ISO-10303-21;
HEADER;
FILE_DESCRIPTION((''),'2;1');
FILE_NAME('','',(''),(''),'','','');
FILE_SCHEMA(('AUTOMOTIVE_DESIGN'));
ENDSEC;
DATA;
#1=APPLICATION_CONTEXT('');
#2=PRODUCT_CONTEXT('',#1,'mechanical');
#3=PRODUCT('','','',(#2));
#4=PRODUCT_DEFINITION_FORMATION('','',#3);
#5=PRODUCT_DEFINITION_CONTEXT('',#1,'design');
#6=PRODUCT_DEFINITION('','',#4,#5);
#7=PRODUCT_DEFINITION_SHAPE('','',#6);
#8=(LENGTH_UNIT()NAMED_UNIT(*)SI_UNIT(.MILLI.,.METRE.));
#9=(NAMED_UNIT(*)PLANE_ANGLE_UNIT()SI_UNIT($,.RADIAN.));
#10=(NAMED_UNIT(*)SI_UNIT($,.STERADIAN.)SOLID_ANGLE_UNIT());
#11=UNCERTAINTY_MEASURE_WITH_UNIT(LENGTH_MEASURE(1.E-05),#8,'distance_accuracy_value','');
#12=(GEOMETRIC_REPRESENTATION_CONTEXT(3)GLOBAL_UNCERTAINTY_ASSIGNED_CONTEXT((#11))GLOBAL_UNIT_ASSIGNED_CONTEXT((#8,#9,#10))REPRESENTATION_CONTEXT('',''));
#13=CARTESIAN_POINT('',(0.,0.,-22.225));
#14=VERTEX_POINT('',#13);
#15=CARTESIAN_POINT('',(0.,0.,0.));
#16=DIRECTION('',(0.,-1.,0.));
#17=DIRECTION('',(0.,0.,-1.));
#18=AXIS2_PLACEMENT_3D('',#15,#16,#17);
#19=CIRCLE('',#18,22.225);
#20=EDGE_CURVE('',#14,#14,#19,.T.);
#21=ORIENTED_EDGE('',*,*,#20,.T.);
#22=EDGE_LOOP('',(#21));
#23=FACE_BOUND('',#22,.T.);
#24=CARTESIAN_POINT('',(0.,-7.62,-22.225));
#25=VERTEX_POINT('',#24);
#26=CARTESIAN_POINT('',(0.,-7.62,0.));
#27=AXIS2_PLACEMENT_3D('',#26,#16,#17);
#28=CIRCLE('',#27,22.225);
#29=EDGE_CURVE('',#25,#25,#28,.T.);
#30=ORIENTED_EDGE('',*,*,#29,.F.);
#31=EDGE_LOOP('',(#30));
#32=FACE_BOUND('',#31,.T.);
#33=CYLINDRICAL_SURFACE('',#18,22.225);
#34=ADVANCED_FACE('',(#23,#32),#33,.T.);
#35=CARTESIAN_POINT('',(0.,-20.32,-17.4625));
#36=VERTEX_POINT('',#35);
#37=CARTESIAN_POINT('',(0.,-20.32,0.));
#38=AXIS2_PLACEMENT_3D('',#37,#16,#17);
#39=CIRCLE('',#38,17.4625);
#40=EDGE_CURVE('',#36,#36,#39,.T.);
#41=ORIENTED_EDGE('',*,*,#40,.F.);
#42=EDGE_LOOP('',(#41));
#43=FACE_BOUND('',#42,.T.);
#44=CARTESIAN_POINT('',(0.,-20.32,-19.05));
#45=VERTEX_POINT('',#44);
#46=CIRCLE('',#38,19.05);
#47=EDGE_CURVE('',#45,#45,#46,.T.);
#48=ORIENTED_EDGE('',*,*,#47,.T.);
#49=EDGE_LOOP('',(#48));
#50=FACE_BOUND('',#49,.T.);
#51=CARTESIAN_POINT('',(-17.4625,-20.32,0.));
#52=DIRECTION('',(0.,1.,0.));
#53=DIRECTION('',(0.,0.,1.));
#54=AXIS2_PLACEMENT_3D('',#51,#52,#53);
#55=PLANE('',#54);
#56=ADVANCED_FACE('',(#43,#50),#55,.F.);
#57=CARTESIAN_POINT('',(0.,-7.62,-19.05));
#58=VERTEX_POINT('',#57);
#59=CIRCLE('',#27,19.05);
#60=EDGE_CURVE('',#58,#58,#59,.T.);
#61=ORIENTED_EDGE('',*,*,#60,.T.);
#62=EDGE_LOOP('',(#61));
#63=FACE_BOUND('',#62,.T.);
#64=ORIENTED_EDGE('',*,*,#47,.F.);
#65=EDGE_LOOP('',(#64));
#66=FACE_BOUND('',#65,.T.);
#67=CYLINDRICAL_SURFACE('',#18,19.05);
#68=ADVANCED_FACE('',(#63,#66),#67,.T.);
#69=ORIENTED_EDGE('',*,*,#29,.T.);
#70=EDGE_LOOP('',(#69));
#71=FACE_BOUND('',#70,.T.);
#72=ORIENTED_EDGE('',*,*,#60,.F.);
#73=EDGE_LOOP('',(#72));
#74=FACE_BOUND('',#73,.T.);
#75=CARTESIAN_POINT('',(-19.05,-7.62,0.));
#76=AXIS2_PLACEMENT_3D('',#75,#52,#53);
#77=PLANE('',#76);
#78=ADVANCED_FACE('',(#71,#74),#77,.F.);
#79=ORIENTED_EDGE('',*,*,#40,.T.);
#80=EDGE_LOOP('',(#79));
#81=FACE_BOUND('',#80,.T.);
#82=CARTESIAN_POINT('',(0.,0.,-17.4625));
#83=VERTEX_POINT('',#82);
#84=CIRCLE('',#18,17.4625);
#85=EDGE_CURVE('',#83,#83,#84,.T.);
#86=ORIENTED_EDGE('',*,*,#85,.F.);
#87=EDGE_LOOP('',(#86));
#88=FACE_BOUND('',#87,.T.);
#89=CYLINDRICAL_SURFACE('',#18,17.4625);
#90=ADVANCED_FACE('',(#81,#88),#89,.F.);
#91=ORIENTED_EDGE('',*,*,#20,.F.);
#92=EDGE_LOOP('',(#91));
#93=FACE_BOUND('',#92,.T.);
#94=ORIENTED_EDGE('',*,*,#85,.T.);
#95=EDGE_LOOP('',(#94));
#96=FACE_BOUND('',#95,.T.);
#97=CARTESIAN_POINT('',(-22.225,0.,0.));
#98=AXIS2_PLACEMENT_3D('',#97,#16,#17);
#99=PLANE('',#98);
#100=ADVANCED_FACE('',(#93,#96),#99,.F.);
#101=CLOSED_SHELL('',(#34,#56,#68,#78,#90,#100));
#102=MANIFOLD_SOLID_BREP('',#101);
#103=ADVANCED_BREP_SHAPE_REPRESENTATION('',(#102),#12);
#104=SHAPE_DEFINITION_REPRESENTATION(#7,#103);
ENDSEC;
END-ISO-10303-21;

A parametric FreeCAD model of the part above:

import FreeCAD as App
import Part
import Sketcher
from FreeCAD import Vector
Q = App.Units.Quantity


def add_polygon(sketch, points):
    """Adds a closed chain of lines whose ends are joined by coincident constraints."""
    first, n = sketch.GeometryCount, len(points)
    for a, b in zip(points, points[1:] + points[:1]):
        sketch.addGeometry(Part.LineSegment(App.Vector(*a, 0), App.Vector(*b, 0)), False)
    for i in range(n):
        sketch.addConstraint(Sketcher.Constraint("Coincident", first + i, 2, first + (i + 1) % n, 1))

doc = App.newDocument("Part")
body = doc.addObject("PartDesign::Body", "Body")

# Sketch on XY plane
sketch1 = body.newObject("Sketcher::SketchObject", "Sketch")
sketch1.AttachmentSupport = (doc.getObject("XY_Plane"), [""])
sketch1.MapMode = "FlatFace"
add_polygon(sketch1, [(-17.5, -20.3), (-17.5, 0), (-22.2, 0), (-22.2, -7.6), (-19.1, -7.6), (-19.1, -20.3)])  # lines 0-5
sketch1.addConstraint(Sketcher.Constraint("Vertical", 0))
sketch1.addConstraint(Sketcher.Constraint("Horizontal", 1))
sketch1.addConstraint(Sketcher.Constraint("Vertical", 2))
sketch1.addConstraint(Sketcher.Constraint("Horizontal", 3))
sketch1.addConstraint(Sketcher.Constraint("Vertical", 4))
sketch1.addConstraint(Sketcher.Constraint("Horizontal", 5))
sketch1.addConstraint(Sketcher.Constraint("PointOnObject", 0, 2, -1))
sketch1.addConstraint(Sketcher.Constraint("DistanceY", 0, 1, 0, 2, Q("0.8 in")))
sketch1.addConstraint(Sketcher.Constraint("DistanceY", 2, 2, 2, 1, Q("0.3 in")))
sketch1.addConstraint(Sketcher.Constraint("DistanceX", 1, 2, 1, 1, Q("0.1875 in")))
sketch1.addConstraint(Sketcher.Constraint("DistanceX", 3, 1, 3, 2, Q("0.125 in")))
sketch1.addConstraint(Sketcher.Constraint("DistanceX", 3, 2, -1, 1, Q("0.75 in")))
revolution = body.newObject("PartDesign::Revolution", "Revolution")
revolution.Profile = sketch1
revolution.ReferenceAxis = (sketch1, ["V_Axis"])
revolution.Angle = 360

doc.recompute()
